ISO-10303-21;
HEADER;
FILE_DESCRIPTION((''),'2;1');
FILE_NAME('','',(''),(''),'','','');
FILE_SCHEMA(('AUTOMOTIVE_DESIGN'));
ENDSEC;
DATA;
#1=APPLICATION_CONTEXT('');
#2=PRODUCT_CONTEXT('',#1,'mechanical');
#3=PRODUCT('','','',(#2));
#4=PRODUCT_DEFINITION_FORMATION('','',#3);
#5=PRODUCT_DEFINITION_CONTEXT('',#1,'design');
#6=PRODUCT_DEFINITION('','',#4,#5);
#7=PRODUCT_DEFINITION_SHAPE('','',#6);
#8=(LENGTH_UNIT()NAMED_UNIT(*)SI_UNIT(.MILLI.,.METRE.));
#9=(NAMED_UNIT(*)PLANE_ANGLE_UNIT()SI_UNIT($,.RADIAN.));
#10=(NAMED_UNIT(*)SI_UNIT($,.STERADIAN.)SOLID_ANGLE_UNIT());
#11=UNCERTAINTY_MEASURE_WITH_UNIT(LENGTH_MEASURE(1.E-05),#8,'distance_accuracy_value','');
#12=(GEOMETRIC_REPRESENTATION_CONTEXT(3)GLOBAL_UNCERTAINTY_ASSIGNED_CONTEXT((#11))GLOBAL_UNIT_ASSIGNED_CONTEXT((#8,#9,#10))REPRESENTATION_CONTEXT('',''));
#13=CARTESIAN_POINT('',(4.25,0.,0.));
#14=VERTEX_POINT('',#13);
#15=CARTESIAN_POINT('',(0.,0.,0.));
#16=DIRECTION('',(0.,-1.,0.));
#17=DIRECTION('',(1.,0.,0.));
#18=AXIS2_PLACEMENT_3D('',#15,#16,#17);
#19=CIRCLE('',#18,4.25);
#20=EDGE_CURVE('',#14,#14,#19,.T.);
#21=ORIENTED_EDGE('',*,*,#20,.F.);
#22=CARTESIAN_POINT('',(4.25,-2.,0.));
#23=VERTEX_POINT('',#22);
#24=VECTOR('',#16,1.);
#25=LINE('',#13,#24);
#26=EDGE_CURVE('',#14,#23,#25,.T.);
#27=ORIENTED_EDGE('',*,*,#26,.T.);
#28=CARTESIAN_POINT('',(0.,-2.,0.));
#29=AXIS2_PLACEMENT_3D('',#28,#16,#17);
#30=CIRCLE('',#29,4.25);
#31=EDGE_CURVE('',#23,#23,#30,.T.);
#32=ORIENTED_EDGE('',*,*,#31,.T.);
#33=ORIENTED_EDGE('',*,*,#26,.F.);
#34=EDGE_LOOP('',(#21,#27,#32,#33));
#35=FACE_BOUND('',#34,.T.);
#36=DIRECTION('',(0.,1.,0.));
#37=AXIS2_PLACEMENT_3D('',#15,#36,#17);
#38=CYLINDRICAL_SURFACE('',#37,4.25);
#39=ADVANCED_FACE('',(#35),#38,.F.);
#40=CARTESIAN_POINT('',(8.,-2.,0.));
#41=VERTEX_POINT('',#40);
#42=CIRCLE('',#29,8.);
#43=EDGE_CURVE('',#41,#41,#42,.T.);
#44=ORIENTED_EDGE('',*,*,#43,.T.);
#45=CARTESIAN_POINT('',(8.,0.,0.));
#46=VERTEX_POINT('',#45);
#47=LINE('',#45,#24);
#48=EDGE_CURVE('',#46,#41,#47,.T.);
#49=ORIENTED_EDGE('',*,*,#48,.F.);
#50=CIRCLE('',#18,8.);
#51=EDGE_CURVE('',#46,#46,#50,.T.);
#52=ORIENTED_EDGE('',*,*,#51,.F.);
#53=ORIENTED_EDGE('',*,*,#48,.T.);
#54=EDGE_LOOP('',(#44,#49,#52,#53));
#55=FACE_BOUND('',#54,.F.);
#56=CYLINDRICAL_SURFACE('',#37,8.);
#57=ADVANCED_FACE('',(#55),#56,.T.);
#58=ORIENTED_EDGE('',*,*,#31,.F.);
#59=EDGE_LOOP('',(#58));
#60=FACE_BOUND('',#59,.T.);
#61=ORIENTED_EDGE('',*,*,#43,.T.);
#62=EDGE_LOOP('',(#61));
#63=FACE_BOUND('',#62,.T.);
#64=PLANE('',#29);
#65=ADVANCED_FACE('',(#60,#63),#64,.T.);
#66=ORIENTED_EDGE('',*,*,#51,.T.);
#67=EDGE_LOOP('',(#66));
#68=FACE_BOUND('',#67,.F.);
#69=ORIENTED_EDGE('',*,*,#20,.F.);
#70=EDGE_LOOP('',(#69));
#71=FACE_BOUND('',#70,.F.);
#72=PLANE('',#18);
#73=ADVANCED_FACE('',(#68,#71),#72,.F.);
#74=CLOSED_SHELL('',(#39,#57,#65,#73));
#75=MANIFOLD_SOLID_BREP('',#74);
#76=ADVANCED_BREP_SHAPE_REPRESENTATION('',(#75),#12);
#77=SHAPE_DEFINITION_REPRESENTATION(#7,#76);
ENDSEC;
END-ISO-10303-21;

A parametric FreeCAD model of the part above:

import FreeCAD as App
import Part
import Sketcher
from FreeCAD import Vector
Q = App.Units.Quantity

doc = App.newDocument("Part")
body = doc.addObject("PartDesign::Body", "Body")

# Sketch on XZ plane
sketch1 = body.newObject("Sketcher::SketchObject", "Sketch")
sketch1.AttachmentSupport = (doc.getObject("XZ_Plane"), [""])
sketch1.MapMode = "FlatFace"
sketch1.addGeometry([
    Part.Circle(Vector(0, 0, 0), Vector(0, 0, 1), 8),
    Part.Circle(Vector(0, 0, 0), Vector(0, 0, 1), 4.25),
], False)
sketch1.addConstraint([
    Sketcher.Constraint("Coincident", 0, 3, -1, 1),
    Sketcher.Constraint("Coincident", 1, 3, -1, 1),
    Sketcher.Constraint("Diameter", 0, Q("16 mm")),
    Sketcher.Constraint("Diameter", 1, Q("8.5 mm")),
])
pad1 = body.newObject("PartDesign::Pad", "Pad")
pad1.Profile = sketch1
pad1.Length = 2

doc.recompute()
